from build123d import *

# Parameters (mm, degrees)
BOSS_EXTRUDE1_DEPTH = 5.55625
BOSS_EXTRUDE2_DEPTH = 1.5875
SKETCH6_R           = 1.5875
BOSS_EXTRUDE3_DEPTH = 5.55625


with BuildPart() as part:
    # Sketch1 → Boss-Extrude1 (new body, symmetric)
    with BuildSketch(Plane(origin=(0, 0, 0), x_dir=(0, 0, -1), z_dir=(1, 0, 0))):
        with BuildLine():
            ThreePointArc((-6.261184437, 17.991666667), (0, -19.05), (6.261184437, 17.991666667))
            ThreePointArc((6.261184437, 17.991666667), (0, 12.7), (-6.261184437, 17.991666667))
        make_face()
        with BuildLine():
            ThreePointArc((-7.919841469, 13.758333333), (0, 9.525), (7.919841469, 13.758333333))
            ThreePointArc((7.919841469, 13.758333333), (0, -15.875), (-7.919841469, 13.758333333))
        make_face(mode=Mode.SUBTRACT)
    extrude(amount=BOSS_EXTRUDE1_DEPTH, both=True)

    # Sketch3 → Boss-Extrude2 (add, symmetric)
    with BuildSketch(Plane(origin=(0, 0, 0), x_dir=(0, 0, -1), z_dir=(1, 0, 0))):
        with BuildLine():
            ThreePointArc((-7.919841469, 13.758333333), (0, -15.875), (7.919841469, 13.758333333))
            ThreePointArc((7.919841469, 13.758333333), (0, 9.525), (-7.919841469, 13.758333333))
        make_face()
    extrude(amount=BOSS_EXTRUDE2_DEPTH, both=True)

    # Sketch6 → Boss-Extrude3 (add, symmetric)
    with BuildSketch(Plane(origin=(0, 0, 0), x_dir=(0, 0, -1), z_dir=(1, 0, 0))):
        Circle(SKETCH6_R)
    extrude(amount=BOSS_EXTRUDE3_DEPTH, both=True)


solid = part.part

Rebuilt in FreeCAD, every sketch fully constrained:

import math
import FreeCAD as App
import Part
import Sketcher
from FreeCAD import Vector
Q = App.Units.Quantity

doc = App.newDocument("Part")
params = doc.addObject("Spreadsheet::Sheet", "Params")
for row, (alias, value) in enumerate([
    ("sketch1_radius", "0.75 in"),
    ("sketch1_radius2", "0.25 in"),
    ("sketch1_radius3", "0.625 in"),
    ("sketch1_radius4", "0.375 in"),
    ("pad1_length", "0.4375 in"),
    ("sketch2_radius", "0.625 in"),
    ("sketch2_radius2", "0.375 in"),
    ("pad2_length", "0.125 in"),
    ("sketch3_diameter", "0.125 in"),
    ("pad3_length", "0.4375 in"),
], start=1):
    params.set(f"A{row}", alias)
    params.set(f"B{row}", "=" + value)
    params.setAlias(f"B{row}", alias)

body = doc.addObject("PartDesign::Body", "Body")

# Sketch on YZ plane
sketch1 = body.newObject("Sketcher::SketchObject", "Sketch")
sketch1.AttachmentSupport = (doc.getObject("YZ_Plane"), [""])
sketch1.MapMode = "FlatFace"
sketch1.addGeometry([
    Part.ArcOfCircle(Part.Circle(Vector(0, 0, 0), Vector(0, 0, 1), 19), math.radians(19), math.radians(341)),
    Part.ArcOfCircle(Part.Circle(Vector(19, 0, 0), Vector(0, 0, 1), 6), math.radians(100), math.radians(260)),
    Part.ArcOfCircle(Part.Circle(Vector(0, 0, 0), Vector(0, 0, 1), 16), math.radians(30), math.radians(330)),
    Part.ArcOfCircle(Part.Circle(Vector(19, 0, 0), Vector(0, 0, 1), 10), math.radians(124), math.radians(236)),
], False)
sketch1.addConstraint([
    Sketcher.Constraint("Coincident", 0, 1, 1, 1),
    Sketcher.Constraint("Coincident", 1, 2, 0, 2),
    Sketcher.Constraint("Coincident", 2, 1, 3, 1),
    Sketcher.Constraint("Coincident", 3, 2, 2, 2),
    Sketcher.Constraint("Coincident", 0, 3, -1, 1),
    Sketcher.Constraint("Coincident", 2, 3, -1, 1),
    Sketcher.Constraint("Coincident", 3, 3, 1, 3),
    Sketcher.Constraint("PointOnObject", 1, 3, -1),
    Sketcher.Constraint("Radius", 0, Q("0.75 in")),
    Sketcher.Constraint("Radius", 1, Q("0.25 in")),
    Sketcher.Constraint("Radius", 2, Q("0.625 in")),
    Sketcher.Constraint("Radius", 3, Q("0.375 in")),
    Sketcher.Constraint("DistanceX", -1, 1, 1, 3, Q("0.75 in")),
])
sketch1.setExpression("Constraints[8]", "Params.sketch1_radius")
sketch1.setExpression("Constraints[9]", "Params.sketch1_radius2")
sketch1.setExpression("Constraints[10]", "Params.sketch1_radius3")
sketch1.setExpression("Constraints[11]", "Params.sketch1_radius4")
pad1 = body.newObject("PartDesign::Pad", "Pad")
pad1.Profile = sketch1
pad1.setExpression("Length", "Params.pad1_length")
pad1.Midplane = True

# Sketch on YZ plane
sketch2 = body.newObject("Sketcher::SketchObject", "Sketch001")
sketch2.AttachmentSupport = (doc.getObject("YZ_Plane"), [""])
sketch2.MapMode = "FlatFace"
sketch2.addGeometry([
    Part.ArcOfCircle(Part.Circle(Vector(0, 0, 0), Vector(0, 0, 1), 16), math.radians(30), math.radians(330)),
    Part.ArcOfCircle(Part.Circle(Vector(19, 0, 0), Vector(0, 0, 1), 10), math.radians(124), math.radians(236)),
], False)
sketch2.addConstraint([
    Sketcher.Constraint("Coincident", 0, 1, 1, 1),
    Sketcher.Constraint("Coincident", 1, 2, 0, 2),
    Sketcher.Constraint("Coincident", 0, 3, -1, 1),
    Sketcher.Constraint("PointOnObject", 1, 3, -1),
    Sketcher.Constraint("Radius", 0, Q("0.625 in")),
    Sketcher.Constraint("Radius", 1, Q("0.375 in")),
    Sketcher.Constraint("DistanceX", -1, 1, 1, 3, Q("0.75 in")),
])
sketch2.setExpression("Constraints[4]", "Params.sketch2_radius")
sketch2.setExpression("Constraints[5]", "Params.sketch2_radius2")
pad2 = body.newObject("PartDesign::Pad", "Pad001")
pad2.Profile = sketch2
pad2.setExpression("Length", "Params.pad2_length")
pad2.Midplane = True

# Sketch on YZ plane
sketch3 = body.newObject("Sketcher::SketchObject", "Sketch002")
sketch3.AttachmentSupport = (doc.getObject("YZ_Plane"), [""])
sketch3.MapMode = "FlatFace"
sketch3.addGeometry(Part.Circle(Vector(0, 0, 0), Vector(0, 0, 1), 1.6), False)
sketch3.addConstraint([
    Sketcher.Constraint("Coincident", 0, 3, -1, 1),
    Sketcher.Constraint("Diameter", 0, Q("0.125 in")),
])
sketch3.setExpression("Constraints[1]", "Params.sketch3_diameter")
pad3 = body.newObject("PartDesign::Pad", "Pad002")
pad3.Profile = sketch3
pad3.setExpression("Length", "Params.pad3_length")
pad3.Midplane = True

doc.recompute()
